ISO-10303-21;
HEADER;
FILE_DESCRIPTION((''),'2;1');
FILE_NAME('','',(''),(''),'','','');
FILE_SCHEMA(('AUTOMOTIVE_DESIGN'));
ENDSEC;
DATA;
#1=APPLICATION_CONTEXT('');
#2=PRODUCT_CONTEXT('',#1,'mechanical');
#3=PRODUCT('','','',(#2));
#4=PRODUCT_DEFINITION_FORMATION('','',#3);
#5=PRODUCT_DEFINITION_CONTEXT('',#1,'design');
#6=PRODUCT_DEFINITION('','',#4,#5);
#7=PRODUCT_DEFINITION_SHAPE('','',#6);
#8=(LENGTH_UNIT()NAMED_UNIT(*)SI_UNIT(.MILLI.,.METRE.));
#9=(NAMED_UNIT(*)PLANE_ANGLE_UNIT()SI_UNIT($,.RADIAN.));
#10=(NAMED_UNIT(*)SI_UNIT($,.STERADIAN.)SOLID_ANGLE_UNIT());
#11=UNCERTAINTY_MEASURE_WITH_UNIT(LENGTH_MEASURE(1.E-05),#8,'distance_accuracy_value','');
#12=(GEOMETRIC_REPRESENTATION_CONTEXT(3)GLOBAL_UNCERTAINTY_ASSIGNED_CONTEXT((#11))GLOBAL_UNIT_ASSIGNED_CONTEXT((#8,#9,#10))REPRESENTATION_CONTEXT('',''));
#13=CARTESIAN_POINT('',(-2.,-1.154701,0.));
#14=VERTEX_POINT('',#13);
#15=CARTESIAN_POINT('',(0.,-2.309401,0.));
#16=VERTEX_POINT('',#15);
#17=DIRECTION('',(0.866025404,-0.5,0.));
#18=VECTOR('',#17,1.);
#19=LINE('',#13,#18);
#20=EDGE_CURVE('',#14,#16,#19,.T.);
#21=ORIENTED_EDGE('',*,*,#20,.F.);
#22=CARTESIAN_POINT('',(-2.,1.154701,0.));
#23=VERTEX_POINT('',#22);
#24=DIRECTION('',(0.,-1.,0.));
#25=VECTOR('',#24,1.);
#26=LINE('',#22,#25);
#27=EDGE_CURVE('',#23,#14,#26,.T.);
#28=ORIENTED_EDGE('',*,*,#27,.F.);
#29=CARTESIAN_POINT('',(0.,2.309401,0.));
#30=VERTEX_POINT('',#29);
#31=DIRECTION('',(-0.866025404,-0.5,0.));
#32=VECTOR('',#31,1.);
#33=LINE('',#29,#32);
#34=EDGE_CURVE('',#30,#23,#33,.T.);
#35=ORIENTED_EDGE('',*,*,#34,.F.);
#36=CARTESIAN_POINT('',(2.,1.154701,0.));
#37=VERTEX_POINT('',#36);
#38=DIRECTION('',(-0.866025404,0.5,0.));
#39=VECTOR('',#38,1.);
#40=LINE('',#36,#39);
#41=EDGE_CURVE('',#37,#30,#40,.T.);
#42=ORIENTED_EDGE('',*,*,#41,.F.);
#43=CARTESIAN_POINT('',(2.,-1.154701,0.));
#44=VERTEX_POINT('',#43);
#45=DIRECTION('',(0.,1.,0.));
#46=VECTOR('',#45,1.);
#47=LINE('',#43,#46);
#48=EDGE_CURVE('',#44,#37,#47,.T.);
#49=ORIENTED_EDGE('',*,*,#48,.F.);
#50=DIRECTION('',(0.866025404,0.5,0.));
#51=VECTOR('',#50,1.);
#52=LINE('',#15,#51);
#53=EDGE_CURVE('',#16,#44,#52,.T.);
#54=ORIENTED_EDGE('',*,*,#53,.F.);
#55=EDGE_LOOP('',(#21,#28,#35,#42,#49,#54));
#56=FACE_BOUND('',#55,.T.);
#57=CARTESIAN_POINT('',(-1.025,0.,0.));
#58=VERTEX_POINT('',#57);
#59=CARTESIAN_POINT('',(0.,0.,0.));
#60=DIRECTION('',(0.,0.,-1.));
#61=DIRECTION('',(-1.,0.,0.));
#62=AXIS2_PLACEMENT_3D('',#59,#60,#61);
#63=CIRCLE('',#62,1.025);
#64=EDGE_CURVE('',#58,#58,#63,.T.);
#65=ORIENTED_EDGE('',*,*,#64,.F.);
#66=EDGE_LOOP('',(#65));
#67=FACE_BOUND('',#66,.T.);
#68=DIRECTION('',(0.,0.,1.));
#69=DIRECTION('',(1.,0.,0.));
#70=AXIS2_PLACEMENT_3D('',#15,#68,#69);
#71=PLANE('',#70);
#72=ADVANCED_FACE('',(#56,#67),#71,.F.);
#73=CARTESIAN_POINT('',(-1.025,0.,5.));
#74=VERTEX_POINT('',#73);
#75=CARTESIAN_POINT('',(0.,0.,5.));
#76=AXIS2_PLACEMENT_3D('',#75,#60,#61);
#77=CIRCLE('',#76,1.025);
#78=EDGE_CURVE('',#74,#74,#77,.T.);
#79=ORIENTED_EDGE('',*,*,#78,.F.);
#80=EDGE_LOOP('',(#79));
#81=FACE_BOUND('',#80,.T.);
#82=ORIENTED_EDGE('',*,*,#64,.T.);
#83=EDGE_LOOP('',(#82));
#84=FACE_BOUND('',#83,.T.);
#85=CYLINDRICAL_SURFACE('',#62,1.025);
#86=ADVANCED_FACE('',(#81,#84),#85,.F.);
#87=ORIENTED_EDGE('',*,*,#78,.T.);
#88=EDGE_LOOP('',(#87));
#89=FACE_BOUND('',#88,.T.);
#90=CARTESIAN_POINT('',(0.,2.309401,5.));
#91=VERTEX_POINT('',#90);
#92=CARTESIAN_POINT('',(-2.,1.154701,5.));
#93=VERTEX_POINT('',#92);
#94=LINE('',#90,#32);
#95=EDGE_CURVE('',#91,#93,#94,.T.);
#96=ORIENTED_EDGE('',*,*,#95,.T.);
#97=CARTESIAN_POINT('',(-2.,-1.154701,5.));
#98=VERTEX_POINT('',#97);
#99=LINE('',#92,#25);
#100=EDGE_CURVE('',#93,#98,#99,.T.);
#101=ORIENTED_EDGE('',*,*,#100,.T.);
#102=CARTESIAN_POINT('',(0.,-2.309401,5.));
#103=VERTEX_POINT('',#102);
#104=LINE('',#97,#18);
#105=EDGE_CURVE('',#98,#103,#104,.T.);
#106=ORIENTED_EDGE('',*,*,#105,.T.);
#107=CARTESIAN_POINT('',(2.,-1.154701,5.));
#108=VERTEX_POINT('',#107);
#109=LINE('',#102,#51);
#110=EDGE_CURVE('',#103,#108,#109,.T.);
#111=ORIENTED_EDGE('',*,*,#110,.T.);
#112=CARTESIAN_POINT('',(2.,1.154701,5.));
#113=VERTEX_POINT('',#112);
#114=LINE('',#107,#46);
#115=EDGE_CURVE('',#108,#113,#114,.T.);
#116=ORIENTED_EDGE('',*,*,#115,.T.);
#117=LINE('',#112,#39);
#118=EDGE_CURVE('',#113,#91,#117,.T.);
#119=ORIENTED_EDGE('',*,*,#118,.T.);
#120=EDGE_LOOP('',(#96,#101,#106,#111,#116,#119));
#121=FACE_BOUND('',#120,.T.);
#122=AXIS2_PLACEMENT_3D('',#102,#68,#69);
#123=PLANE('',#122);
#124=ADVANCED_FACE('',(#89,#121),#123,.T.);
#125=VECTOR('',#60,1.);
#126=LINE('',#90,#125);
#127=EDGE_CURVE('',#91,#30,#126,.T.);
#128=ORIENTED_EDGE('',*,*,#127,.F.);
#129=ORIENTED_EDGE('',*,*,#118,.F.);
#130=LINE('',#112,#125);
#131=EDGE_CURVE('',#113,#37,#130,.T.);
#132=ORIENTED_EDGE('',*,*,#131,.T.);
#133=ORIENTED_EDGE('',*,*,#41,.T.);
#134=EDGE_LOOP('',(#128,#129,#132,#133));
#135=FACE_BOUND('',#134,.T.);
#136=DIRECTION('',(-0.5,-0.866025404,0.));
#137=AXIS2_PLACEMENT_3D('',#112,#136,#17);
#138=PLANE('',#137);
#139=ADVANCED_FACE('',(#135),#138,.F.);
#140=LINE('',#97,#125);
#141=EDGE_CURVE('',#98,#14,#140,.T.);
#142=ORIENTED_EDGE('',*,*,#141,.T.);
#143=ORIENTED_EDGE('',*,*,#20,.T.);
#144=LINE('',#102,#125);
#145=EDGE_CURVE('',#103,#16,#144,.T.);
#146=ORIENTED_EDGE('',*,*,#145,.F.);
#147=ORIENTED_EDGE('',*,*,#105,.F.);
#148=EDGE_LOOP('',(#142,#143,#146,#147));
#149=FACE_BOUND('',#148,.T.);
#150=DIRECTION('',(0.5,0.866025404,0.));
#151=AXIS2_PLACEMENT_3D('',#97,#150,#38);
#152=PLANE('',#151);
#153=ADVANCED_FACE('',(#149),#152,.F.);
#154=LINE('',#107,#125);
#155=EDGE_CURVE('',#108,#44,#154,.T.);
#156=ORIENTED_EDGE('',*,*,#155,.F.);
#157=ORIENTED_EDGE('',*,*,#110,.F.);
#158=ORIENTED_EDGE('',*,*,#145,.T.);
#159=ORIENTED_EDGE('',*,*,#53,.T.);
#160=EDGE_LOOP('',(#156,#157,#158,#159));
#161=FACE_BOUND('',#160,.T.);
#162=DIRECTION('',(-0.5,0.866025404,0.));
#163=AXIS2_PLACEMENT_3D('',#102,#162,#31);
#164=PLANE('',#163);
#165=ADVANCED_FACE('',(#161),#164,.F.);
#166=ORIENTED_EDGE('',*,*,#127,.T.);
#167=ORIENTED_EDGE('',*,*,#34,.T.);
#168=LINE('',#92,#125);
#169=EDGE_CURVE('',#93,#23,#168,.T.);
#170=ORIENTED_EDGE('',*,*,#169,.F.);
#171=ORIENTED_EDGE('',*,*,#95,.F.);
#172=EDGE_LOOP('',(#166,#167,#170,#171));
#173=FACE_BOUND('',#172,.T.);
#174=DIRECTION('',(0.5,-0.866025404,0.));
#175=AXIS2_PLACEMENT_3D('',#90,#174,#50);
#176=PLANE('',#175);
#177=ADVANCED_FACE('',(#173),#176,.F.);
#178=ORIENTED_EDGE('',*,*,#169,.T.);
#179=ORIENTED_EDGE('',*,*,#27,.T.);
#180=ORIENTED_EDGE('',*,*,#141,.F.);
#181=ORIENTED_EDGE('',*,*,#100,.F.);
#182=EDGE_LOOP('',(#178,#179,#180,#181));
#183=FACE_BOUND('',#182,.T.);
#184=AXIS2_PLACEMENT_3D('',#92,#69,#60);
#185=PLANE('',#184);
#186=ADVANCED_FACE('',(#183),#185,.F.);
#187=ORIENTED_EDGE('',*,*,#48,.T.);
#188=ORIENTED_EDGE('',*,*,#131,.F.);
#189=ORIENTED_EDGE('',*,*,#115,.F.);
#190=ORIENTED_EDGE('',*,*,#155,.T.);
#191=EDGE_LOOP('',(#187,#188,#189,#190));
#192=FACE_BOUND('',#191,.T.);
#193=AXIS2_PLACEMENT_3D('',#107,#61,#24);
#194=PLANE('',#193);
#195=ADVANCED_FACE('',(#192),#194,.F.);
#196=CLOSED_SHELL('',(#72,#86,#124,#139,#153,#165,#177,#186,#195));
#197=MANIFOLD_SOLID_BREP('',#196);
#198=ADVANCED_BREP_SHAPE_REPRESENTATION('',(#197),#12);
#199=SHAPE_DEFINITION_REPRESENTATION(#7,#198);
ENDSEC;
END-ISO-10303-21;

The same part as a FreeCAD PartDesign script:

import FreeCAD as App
import Part
import Sketcher
Q = App.Units.Quantity

doc = App.newDocument("Part")
body = doc.addObject("PartDesign::Body", "Body")

# Sketch on XY plane
sketch1 = body.newObject("Sketcher::SketchObject", "Sketch")
sketch1.AttachmentSupport = (doc.getObject("XY_Plane"), [""])
sketch1.MapMode = "FlatFace"
sketch1.addGeometry([
    Part.LineSegment(App.Vector(0, -2.3, 0), App.Vector(2, -1.2, 0)),  # 0
    Part.LineSegment(App.Vector(2, -1.2, 0), App.Vector(2, 1.2, 0)),  # 1
    Part.LineSegment(App.Vector(2, 1.2, 0), App.Vector(0, 2.3, 0)),  # 2
    Part.LineSegment(App.Vector(0, 2.3, 0), App.Vector(-2, 1.2, 0)),  # 3
    Part.LineSegment(App.Vector(-2, 1.2, 0), App.Vector(-2, -1.2, 0)),  # 4
    Part.LineSegment(App.Vector(-2, -1.2, 0), App.Vector(0, -2.3, 0)),  # 5
], False)
sketch1.addConstraint([
    Sketcher.Constraint("Coincident", 0, 2, 1, 1),
    Sketcher.Constraint("Coincident", 1, 2, 2, 1),
    Sketcher.Constraint("Coincident", 2, 2, 3, 1),
    Sketcher.Constraint("Coincident", 3, 2, 4, 1),
    Sketcher.Constraint("Coincident", 4, 2, 5, 1),
    Sketcher.Constraint("Coincident", 5, 2, 0, 1),
    Sketcher.Constraint("Vertical", 1),
    Sketcher.Constraint("Vertical", 4),
    Sketcher.Constraint("Symmetric", 0, 2, 3, 2, -1, 1),
    Sketcher.Constraint("Symmetric", 2, 2, 5, 2, -1, 1),
    Sketcher.Constraint("PointOnObject", 2, 2, -2),
    Sketcher.Constraint("Parallel", 2, 5),
    Sketcher.Constraint("Horizontal", 1, 2, 3, 2),
    Sketcher.Constraint("Angle", 0, Q("30 deg")),
    Sketcher.Constraint("DistanceX", -1, 1, 0, 2, 2.0),
    Sketcher.Constraint("DistanceY", 1, 1, 1, 2, 2.309401),
])
pad1 = body.newObject("PartDesign::Pad", "Pad")
pad1.Profile = sketch1
pad1.Length = 5

# Sketch on XY plane
sketch2 = body.newObject("Sketcher::SketchObject", "Sketch001")
sketch2.AttachmentSupport = (doc.getObject("XY_Plane"), [""])
sketch2.MapMode = "FlatFace"
sketch2.addGeometry(Part.Circle(App.Vector(0, 0, 0), App.Vector(0, 0, 1), 1), False)
sketch2.addConstraint([
    Sketcher.Constraint("Coincident", 0, 3, -1, 1),
    Sketcher.Constraint("Diameter", 0, 2.05),
])
doc.recompute()
hole = body.newObject("PartDesign::Hole", "Hole")
hole.Profile = sketch2
hole.ThreadType = "None"
hole.Diameter = 2.05
hole.DepthType = "ThroughAll"
hole.Reversed = True

doc.recompute()
